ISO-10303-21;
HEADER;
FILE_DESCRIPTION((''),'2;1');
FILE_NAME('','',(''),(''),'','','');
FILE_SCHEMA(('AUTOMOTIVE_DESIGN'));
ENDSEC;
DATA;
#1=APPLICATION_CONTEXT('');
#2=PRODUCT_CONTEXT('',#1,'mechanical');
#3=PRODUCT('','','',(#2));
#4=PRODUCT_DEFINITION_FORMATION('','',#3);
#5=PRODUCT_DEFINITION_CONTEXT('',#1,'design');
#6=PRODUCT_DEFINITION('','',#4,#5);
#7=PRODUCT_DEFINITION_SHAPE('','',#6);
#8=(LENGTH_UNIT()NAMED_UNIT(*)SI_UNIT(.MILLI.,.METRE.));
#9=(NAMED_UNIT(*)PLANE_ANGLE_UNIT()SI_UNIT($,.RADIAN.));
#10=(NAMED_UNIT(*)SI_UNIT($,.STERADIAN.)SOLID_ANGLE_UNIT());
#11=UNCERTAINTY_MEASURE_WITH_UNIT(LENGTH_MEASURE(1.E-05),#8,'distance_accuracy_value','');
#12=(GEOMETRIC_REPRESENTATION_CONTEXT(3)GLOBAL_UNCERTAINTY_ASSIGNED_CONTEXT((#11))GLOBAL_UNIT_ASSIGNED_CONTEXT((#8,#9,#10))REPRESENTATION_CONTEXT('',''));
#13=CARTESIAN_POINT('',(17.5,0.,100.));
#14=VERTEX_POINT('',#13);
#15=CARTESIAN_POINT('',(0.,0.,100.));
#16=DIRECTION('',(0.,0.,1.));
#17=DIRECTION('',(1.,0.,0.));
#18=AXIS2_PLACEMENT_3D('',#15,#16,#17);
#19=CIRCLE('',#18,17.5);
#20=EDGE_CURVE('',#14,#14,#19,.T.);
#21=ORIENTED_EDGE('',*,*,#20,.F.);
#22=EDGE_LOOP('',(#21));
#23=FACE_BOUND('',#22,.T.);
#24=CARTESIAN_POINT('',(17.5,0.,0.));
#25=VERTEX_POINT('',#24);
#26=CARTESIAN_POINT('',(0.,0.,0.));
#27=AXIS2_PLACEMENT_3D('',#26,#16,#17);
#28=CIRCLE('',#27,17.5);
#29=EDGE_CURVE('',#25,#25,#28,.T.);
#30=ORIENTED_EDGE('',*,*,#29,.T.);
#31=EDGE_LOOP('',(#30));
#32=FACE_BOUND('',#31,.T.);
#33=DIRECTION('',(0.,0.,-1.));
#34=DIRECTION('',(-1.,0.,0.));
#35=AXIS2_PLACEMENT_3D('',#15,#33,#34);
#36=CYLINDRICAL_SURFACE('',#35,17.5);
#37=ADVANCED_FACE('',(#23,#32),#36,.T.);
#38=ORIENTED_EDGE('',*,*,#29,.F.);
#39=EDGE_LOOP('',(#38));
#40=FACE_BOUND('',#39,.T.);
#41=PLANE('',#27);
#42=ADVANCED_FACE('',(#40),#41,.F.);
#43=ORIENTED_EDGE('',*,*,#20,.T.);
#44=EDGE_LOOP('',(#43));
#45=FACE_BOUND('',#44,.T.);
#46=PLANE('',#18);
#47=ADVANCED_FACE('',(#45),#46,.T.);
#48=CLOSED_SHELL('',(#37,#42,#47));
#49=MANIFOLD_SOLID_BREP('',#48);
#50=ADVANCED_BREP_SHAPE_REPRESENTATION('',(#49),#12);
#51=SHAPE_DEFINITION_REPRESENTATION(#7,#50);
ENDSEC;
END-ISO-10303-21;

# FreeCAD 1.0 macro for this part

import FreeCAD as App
import Part
import Sketcher
from FreeCAD import Vector

doc = App.newDocument("Part")
body = doc.addObject("PartDesign::Body", "Body")

sketch1 = body.newObject("Sketcher::SketchObject", "Sketch")
sketch1.AttachmentSupport = (doc.getObject("XY_Plane"), [""])
sketch1.MapMode = "FlatFace"
sketch1.addGeometry(Part.Circle(Vector(0, 0, 0), Vector(0, 0, 1), 18), False)
sketch1.addConstraint(Sketcher.Constraint("Coincident", 0, 3, -1, 1))
sketch1.addConstraint(Sketcher.Constraint("Diameter", 0, 35.0))
pad1 = body.newObject("PartDesign::Pad", "Pad")
pad1.Profile = sketch1
pad1.Length = 100

doc.recompute()
